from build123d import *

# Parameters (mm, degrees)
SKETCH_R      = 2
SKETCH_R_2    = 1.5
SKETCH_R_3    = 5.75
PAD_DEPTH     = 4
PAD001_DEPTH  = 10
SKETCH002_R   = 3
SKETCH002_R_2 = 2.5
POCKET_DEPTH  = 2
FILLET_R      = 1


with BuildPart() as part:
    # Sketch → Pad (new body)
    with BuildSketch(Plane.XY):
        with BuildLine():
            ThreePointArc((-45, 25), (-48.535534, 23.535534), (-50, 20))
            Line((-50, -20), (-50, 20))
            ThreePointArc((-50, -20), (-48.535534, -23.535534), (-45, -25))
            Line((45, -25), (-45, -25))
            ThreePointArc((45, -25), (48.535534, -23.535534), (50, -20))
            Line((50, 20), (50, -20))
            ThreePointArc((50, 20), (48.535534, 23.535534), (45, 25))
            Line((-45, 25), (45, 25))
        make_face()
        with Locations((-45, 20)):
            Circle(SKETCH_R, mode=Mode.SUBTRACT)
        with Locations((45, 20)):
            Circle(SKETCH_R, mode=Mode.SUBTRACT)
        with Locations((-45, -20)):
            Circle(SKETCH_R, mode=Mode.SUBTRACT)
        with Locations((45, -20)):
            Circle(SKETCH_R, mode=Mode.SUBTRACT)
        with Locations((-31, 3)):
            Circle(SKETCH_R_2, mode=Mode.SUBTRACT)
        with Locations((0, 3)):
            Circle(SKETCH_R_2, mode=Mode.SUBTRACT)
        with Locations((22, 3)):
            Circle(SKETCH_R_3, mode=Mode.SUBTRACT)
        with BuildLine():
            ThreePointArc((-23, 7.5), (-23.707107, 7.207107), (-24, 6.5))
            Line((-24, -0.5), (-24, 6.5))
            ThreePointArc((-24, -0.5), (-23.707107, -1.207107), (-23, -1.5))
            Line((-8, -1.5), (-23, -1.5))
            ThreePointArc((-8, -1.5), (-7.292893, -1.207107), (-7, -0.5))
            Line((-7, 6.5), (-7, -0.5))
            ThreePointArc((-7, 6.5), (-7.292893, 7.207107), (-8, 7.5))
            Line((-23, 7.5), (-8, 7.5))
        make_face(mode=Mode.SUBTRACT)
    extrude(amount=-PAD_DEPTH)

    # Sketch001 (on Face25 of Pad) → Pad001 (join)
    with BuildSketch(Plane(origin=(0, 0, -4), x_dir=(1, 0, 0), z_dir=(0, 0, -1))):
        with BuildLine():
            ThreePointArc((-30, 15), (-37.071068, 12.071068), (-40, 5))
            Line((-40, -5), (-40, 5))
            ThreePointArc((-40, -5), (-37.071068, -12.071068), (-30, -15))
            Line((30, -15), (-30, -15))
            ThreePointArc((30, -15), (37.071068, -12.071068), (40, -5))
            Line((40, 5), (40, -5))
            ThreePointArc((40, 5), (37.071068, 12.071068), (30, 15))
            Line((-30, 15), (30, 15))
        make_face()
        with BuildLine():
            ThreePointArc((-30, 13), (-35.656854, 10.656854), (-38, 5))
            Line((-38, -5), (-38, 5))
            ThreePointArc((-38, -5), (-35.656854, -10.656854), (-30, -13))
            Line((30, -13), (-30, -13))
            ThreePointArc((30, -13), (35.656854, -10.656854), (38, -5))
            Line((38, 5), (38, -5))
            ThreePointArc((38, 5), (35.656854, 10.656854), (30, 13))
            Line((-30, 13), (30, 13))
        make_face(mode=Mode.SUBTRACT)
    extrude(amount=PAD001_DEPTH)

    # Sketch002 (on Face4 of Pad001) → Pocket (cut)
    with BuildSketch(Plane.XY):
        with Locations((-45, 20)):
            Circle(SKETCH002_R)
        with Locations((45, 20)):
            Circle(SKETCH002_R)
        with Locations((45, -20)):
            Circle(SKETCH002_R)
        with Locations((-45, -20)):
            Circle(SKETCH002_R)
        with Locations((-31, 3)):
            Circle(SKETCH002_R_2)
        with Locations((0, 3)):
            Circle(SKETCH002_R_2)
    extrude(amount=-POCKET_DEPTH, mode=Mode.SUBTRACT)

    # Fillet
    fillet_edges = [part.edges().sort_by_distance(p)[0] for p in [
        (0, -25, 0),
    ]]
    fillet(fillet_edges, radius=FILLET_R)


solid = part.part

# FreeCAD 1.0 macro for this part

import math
import FreeCAD as App
import Part
import Sketcher

V = App.Vector
Q = App.Units.Quantity


def edges_at(feature, points):
    """Names of the edges that pass closest to the given points."""
    edges = feature.Shape.Edges
    near = lambda p: min(range(len(edges)), key=lambda i: edges[i].distToShape(Part.Vertex(*p))[0])
    return sorted({f"Edge{near(p) + 1}" for p in points})

doc = App.newDocument("Part")
body = doc.addObject("PartDesign::Body", "Body")

# Sketch on XY plane
sketch1 = doc.addObject("Sketcher::SketchObject", "Sketch")
body.addObject(sketch1)
sketch1.AttachmentSupport = (doc.XY_Plane, [""])
sketch1.MapMode = "FlatFace"
sketch1.addGeometry([
    Part.ArcOfCircle(Part.Circle(V(-45, 20, 0), V(0, 0, 1), 5), math.radians(90), math.radians(180)),  # 0
    Part.LineSegment(V(-50, 20, 0), V(-50, -20, 0)),  # 1
    Part.ArcOfCircle(Part.Circle(V(-45, -20, 0), V(0, 0, 1), 5), math.radians(180), math.radians(270)),  # 2
    Part.LineSegment(V(-45, -25, 0), V(45, -25, 0)),  # 3
    Part.ArcOfCircle(Part.Circle(V(45, -20, 0), V(0, 0, 1), 5), math.radians(-90), math.radians(0)),  # 4
    Part.LineSegment(V(50, -20, 0), V(50, 20, 0)),  # 5
    Part.ArcOfCircle(Part.Circle(V(45, 20, 0), V(0, 0, 1), 5), math.radians(0), math.radians(90)),  # 6
    Part.LineSegment(V(45, 25, 0), V(-45, 25, 0)),  # 7
    Part.Circle(V(-45, -20, 0), V(0, 0, 1), 2),  # 8
    Part.Circle(V(45, -20, 0), V(0, 0, 1), 2),  # 9
    Part.Circle(V(-31, 3, 0), V(0, 0, 1), 1.5),  # 10
    Part.ArcOfCircle(Part.Circle(V(-23, 6.5, 0), V(0, 0, 1), 1), math.radians(90), math.radians(180)),  # 11
    Part.LineSegment(V(-23, 7.5, 0), V(-8, 7.5, 0)),  # 12
    Part.ArcOfCircle(Part.Circle(V(-8, 6.5, 0), V(0, 0, 1), 1), math.radians(0), math.radians(90)),  # 13
    Part.LineSegment(V(-7, 6.5, 0), V(-7, -0.5, 0)),  # 14
    Part.ArcOfCircle(Part.Circle(V(-8, -0.5, 0), V(0, 0, 1), 1), math.radians(-90), math.radians(0)),  # 15
    Part.LineSegment(V(-8, -1.5, 0), V(-23, -1.5, 0)),  # 16
    Part.ArcOfCircle(Part.Circle(V(-23, -0.5, 0), V(0, 0, 1), 1), math.radians(180), math.radians(270)),  # 17
    Part.LineSegment(V(-24, -0.5, 0), V(-24, 6.5, 0)),  # 18
    Part.Circle(V(-45, 20, 0), V(0, 0, 1), 2),  # 19
    Part.Circle(V(0, 3, 0), V(0, 0, 1), 1.5),  # 20
    Part.Circle(V(22, 3, 0), V(0, 0, 1), 5.8),  # 21
    Part.Circle(V(45, 20, 0), V(0, 0, 1), 2),  # 22
], False)
sketch1.addConstraint([
    Sketcher.Constraint("Tangent", 0, 2, 1, 1),
    Sketcher.Constraint("Tangent", 1, 2, 2, 1),
    Sketcher.Constraint("Tangent", 2, 2, 3, 1),
    Sketcher.Constraint("Tangent", 3, 2, 4, 1),
    Sketcher.Constraint("Tangent", 4, 2, 5, 1),
    Sketcher.Constraint("Tangent", 5, 2, 6, 1),
    Sketcher.Constraint("Tangent", 6, 2, 7, 1),
    Sketcher.Constraint("Tangent", 7, 2, 0, 1),
    Sketcher.Constraint("Tangent", 11, 1, 12, 1),
    Sketcher.Constraint("Tangent", 12, 2, 13, 2),
    Sketcher.Constraint("Tangent", 13, 1, 14, 1),
    Sketcher.Constraint("Tangent", 14, 2, 15, 2),
    Sketcher.Constraint("Tangent", 15, 1, 16, 1),
    Sketcher.Constraint("Tangent", 16, 2, 17, 2),
    Sketcher.Constraint("Tangent", 17, 1, 18, 1),
    Sketcher.Constraint("Tangent", 18, 2, 11, 2),
    Sketcher.Constraint("Vertical", 1),
    Sketcher.Constraint("Horizontal", 3),
    Sketcher.Constraint("Vertical", 5),
    Sketcher.Constraint("Horizontal", 7),
    Sketcher.Constraint("Horizontal", 12),
    Sketcher.Constraint("Vertical", 14),
    Sketcher.Constraint("Horizontal", 16),
    Sketcher.Constraint("Vertical", 18),
    Sketcher.Constraint("Coincident", 8, 3, 2, 3),
    Sketcher.Constraint("Coincident", 9, 3, 4, 3),
    Sketcher.Constraint("Coincident", 19, 3, 0, 3),
    Sketcher.Constraint("Coincident", 22, 3, 6, 3),
    Sketcher.Constraint("Equal", 0, 2),
    Sketcher.Constraint("Equal", 2, 4),
    Sketcher.Constraint("Equal", 4, 6),
    Sketcher.Constraint("Equal", 8, 9),
    Sketcher.Constraint("Equal", 11, 13),
    Sketcher.Constraint("Equal", 13, 15),
    Sketcher.Constraint("Equal", 15, 17),
    Sketcher.Constraint("Equal", 9, 19),
    Sketcher.Constraint("Equal", 10, 20),
    Sketcher.Constraint("Equal", 19, 22),
    Sketcher.Constraint("Symmetric", 0, 3, 4, 3, -1, 1),
    Sketcher.Constraint("PointOnObject", 20, 3, -2),
    Sketcher.Constraint("Horizontal", 10, 3, 20, 3),
    Sketcher.Constraint("Horizontal", 20, 3, 21, 3),
    Sketcher.Constraint("Diameter", 8, Q("4 mm")),
    Sketcher.Constraint("Diameter", 10, Q("3 mm")),
    Sketcher.Constraint("Radius", 0, Q("5 mm")),
    Sketcher.Constraint("Radius", 11, Q("0.999999 mm")),
    Sketcher.Constraint("Diameter", 21, Q("11.5 mm")),
    Sketcher.Constraint("DistanceX", 3, 1, 3, 2, Q("90 mm")),
    Sketcher.Constraint("DistanceX", 12, 1, 12, 2, Q("15 mm")),
    Sketcher.Constraint("DistanceY", 1, 2, 1, 1, Q("40 mm")),
    Sketcher.Constraint("DistanceY", 14, 2, 14, 1, Q("7 mm")),
    Sketcher.Constraint("DistanceX", 10, 3, -1, 1, Q("31 mm")),
    Sketcher.Constraint("DistanceY", -1, 1, 10, 3, Q("3 mm")),
    Sketcher.Constraint("DistanceX", 11, 3, -1, 1, Q("23.000001 mm")),
    Sketcher.Constraint("DistanceX", -1, 1, 21, 3, Q("22 mm")),
    Sketcher.Constraint("DistanceY", -1, 1, 11, 3, Q("6.500001 mm")),
])
pad1 = doc.addObject("PartDesign::Pad", "Pad")
body.addObject(pad1)
pad1.Profile = sketch1
pad1.Length = 4
pad1.Reversed = True

# Sketch on XY plane
sketch2 = doc.addObject("Sketcher::SketchObject", "Sketch001")
body.addObject(sketch2)
sketch2.AttachmentSupport = (doc.XY_Plane, [""])
sketch2.MapMode = "FlatFace"
sketch2.AttachmentOffset = App.Placement(V(0, 0, -4), App.Rotation())
sketch2.addGeometry([
    Part.ArcOfCircle(Part.Circle(V(-30, -5, 0), V(0, 0, 1), 10), math.radians(180), math.radians(270)),  # 0
    Part.LineSegment(V(-40, -5, 0), V(-40, 5, 0)),  # 1
    Part.ArcOfCircle(Part.Circle(V(-30, 5, 0), V(0, 0, 1), 10), math.radians(90), math.radians(180)),  # 2
    Part.LineSegment(V(-30, 15, 0), V(30, 15, 0)),  # 3
    Part.ArcOfCircle(Part.Circle(V(30, 5, 0), V(0, 0, 1), 10), math.radians(0), math.radians(90)),  # 4
    Part.LineSegment(V(40, 5, 0), V(40, -5, 0)),  # 5
    Part.ArcOfCircle(Part.Circle(V(30, -5, 0), V(0, 0, 1), 10), math.radians(-90), math.radians(0)),  # 6
    Part.LineSegment(V(30, -15, 0), V(-30, -15, 0)),  # 7
    Part.ArcOfCircle(Part.Circle(V(-30, -5, 0), V(0, 0, 1), 8), math.radians(-180), math.radians(-90)),  # 8
    Part.LineSegment(V(-30, -13, 0), V(30, -13, 0)),  # 9
    Part.ArcOfCircle(Part.Circle(V(30, -5, 0), V(0, 0, 1), 8), math.radians(-90), math.radians(0)),  # 10
    Part.LineSegment(V(38, -5, 0), V(38, 5, 0)),  # 11
    Part.ArcOfCircle(Part.Circle(V(30, 5, 0), V(0, 0, 1), 8), math.radians(0), math.radians(90)),  # 12
    Part.LineSegment(V(30, 13, 0), V(-30, 13, 0)),  # 13
    Part.ArcOfCircle(Part.Circle(V(-30, 5, 0), V(0, 0, 1), 8), math.radians(90), math.radians(180)),  # 14
    Part.LineSegment(V(-38, 5, 0), V(-38, -5, 0)),  # 15
], False)
sketch2.addConstraint([
    Sketcher.Constraint("Tangent", 0, 1, 1, 1),
    Sketcher.Constraint("Tangent", 1, 2, 2, 2),
    Sketcher.Constraint("Tangent", 2, 1, 3, 1),
    Sketcher.Constraint("Tangent", 3, 2, 4, 2),
    Sketcher.Constraint("Tangent", 4, 1, 5, 1),
    Sketcher.Constraint("Tangent", 5, 2, 6, 2),
    Sketcher.Constraint("Tangent", 6, 1, 7, 1),
    Sketcher.Constraint("Tangent", 7, 2, 0, 2),
    Sketcher.Constraint("Tangent", 8, 2, 9, 1),
    Sketcher.Constraint("Tangent", 9, 2, 10, 1),
    Sketcher.Constraint("Tangent", 10, 2, 11, 1),
    Sketcher.Constraint("Tangent", 11, 2, 12, 1),
    Sketcher.Constraint("Tangent", 12, 2, 13, 1),
    Sketcher.Constraint("Tangent", 13, 2, 14, 1),
    Sketcher.Constraint("Tangent", 14, 2, 15, 1),
    Sketcher.Constraint("Tangent", 15, 2, 8, 1),
    Sketcher.Constraint("Vertical", 1),
    Sketcher.Constraint("Horizontal", 3),
    Sketcher.Constraint("Vertical", 5),
    Sketcher.Constraint("Horizontal", 7),
    Sketcher.Constraint("Horizontal", 9),
    Sketcher.Constraint("Vertical", 11),
    Sketcher.Constraint("Horizontal", 13),
    Sketcher.Constraint("Vertical", 15),
    Sketcher.Constraint("Coincident", 8, 3, 0, 3),
    Sketcher.Constraint("Coincident", 10, 3, 6, 3),
    Sketcher.Constraint("Coincident", 12, 3, 4, 3),
    Sketcher.Constraint("Equal", 0, 2),
    Sketcher.Constraint("Equal", 2, 4),
    Sketcher.Constraint("Equal", 4, 6),
    Sketcher.Constraint("Equal", 12, 14),
    Sketcher.Constraint("Symmetric", 0, 3, 4, 3, -1, 1),
    Sketcher.Constraint("Radius", 0, Q("9.999999 mm")),
    Sketcher.Constraint("Radius", 8, Q("8.000001 mm")),
    Sketcher.Constraint("DistanceX", 3, 1, 3, 2, Q("60 mm")),
    Sketcher.Constraint("DistanceY", 1, 1, 1, 2, Q("10 mm")),
])
pad2 = doc.addObject("PartDesign::Pad", "Pad001")
body.addObject(pad2)
pad2.Profile = sketch2
pad2.Length = 10
pad2.Reversed = True

# Sketch on XY plane
sketch3 = doc.addObject("Sketcher::SketchObject", "Sketch002")
body.addObject(sketch3)
sketch3.AttachmentSupport = (doc.XY_Plane, [""])
sketch3.MapMode = "FlatFace"
sketch3.addGeometry([
    Part.Circle(V(-45, 20, 0), V(0, 0, 1), 3),  # 0
    Part.Circle(V(45, 20, 0), V(0, 0, 1), 3),  # 1
    Part.Circle(V(45, -20, 0), V(0, 0, 1), 3),  # 2
    Part.Circle(V(-45, -20, 0), V(0, 0, 1), 3),  # 3
    Part.Circle(V(-31, 3, 0), V(0, 0, 1), 2.5),  # 4
    Part.Circle(V(0, 3, 0), V(0, 0, 1), 2.5),  # 5
], False)
sketch3.addConstraint([
    Sketcher.Constraint("Equal", 0, 1),
    Sketcher.Constraint("Equal", 1, 2),
    Sketcher.Constraint("Equal", 2, 3),
    Sketcher.Constraint("Equal", 4, 5),
    Sketcher.Constraint("Symmetric", 0, 3, 2, 3, -1, 1),
    Sketcher.Constraint("Symmetric", 1, 3, 3, 3, -1, 1),
    Sketcher.Constraint("Symmetric", 0, 3, 1, 3, -2),
    Sketcher.Constraint("PointOnObject", 5, 3, -2),
    Sketcher.Constraint("Horizontal", 4, 3, 5, 3),
    Sketcher.Constraint("Diameter", 0, Q("6 mm")),
    Sketcher.Constraint("Diameter", 4, Q("5 mm")),
    Sketcher.Constraint("DistanceX", 0, 3, -1, 1, Q("45 mm")),
    Sketcher.Constraint("DistanceY", -1, 1, 0, 3, Q("20 mm")),
    Sketcher.Constraint("DistanceX", 4, 3, -1, 1, Q("31 mm")),
    Sketcher.Constraint("DistanceY", -1, 1, 4, 3, Q("3 mm")),
])
pocket1 = doc.addObject("PartDesign::Pocket", "Pocket")
body.addObject(pocket1)
pocket1.Profile = sketch3
pocket1.Length = 2
doc.recompute()

fillet = doc.addObject("PartDesign::Fillet", "Fillet")
body.addObject(fillet)
fillet.Base = (pocket1, edges_at(pocket1, [(0, -25, 0)]))
fillet.Radius = 1

doc.recompute()
